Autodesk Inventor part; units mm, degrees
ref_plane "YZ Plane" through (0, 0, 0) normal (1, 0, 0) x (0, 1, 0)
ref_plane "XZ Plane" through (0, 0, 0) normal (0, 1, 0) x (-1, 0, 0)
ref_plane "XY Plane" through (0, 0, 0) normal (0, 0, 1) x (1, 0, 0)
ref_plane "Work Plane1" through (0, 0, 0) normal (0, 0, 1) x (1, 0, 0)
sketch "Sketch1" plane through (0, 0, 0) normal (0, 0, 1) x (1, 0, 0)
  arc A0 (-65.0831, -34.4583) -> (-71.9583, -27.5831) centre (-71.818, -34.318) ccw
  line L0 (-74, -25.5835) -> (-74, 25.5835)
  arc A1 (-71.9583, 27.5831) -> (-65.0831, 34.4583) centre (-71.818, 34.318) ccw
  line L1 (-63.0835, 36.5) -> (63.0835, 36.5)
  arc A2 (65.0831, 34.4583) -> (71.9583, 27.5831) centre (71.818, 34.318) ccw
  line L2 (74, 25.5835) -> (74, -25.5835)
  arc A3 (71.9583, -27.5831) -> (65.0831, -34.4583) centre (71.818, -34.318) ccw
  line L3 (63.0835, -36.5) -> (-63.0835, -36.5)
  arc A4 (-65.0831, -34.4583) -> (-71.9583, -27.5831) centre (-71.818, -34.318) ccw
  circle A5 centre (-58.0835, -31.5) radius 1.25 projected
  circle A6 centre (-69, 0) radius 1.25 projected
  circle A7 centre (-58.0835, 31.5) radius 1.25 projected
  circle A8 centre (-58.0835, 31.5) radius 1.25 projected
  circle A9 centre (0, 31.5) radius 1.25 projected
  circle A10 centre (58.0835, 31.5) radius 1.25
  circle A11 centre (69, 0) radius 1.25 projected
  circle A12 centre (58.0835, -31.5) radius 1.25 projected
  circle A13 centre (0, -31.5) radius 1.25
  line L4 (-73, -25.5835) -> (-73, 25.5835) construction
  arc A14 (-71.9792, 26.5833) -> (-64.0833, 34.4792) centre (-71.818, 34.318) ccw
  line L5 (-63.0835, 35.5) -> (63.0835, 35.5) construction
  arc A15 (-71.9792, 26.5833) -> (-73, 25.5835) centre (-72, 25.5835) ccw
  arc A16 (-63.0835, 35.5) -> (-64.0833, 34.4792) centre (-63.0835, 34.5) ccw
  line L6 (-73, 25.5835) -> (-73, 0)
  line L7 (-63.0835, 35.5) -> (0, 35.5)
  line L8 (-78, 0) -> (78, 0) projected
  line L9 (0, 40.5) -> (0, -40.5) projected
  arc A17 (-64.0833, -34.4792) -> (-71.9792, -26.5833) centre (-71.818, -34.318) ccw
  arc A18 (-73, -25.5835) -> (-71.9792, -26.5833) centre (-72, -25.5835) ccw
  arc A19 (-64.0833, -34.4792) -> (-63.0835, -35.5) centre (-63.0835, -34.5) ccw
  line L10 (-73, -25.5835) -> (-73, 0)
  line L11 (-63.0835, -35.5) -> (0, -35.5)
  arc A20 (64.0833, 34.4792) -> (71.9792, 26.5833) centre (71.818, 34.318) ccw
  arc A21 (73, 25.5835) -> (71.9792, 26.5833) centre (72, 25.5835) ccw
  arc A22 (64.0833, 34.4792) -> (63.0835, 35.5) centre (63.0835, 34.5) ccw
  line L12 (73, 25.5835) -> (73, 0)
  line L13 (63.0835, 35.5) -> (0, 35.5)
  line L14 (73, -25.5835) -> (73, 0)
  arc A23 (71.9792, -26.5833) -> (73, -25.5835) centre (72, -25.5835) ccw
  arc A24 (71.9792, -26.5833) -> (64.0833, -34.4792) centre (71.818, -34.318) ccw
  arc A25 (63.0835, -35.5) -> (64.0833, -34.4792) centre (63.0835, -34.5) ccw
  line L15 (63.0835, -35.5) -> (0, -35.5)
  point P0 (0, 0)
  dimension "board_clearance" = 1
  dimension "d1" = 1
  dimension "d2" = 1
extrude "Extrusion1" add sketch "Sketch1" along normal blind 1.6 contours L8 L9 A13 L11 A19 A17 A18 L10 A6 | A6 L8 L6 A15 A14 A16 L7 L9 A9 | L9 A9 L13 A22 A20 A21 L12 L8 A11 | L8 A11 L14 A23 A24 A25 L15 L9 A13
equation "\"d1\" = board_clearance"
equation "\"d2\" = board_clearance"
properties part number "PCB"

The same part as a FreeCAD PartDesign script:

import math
import FreeCAD as App
import Part
import Sketcher

V = App.Vector
Q = App.Units.Quantity

doc = App.newDocument("Part")
body = doc.addObject("PartDesign::Body", "Body")

sketch1 = body.newObject("Sketcher::SketchObject", "Sketch")
sketch1.AttachmentSupport = (doc.getObject("XY_Plane"), [""])
sketch1.MapMode = "FlatFace"
sketch1.addGeometry([
    Part.LineSegment(V(-63.1, -35.5, 0), V(63.1, -35.5, 0)),
    Part.ArcOfCircle(Part.Circle(V(63.1, -34.5, 0), V(0, 0, 1), 1), math.radians(-90), math.radians(1)),
    Part.ArcOfCircle(Part.Circle(V(71.8, -34.3, 0), V(0, 0, 1), 7.7), math.radians(89), math.radians(181)),
    Part.ArcOfCircle(Part.Circle(V(72, -25.6, 0), V(0, 0, 1), 1), math.radians(-91), math.radians(0)),
    Part.LineSegment(V(73, -25.6, 0), V(73, 25.6, 0)),
    Part.ArcOfCircle(Part.Circle(V(72, 25.6, 0), V(0, 0, 1), 1), math.radians(0), math.radians(91)),
    Part.ArcOfCircle(Part.Circle(V(71.8, 34.3, 0), V(0, 0, 1), 7.7), math.radians(179), math.radians(271)),
    Part.ArcOfCircle(Part.Circle(V(63.1, 34.5, 0), V(0, 0, 1), 1), math.radians(-1), math.radians(90)),
    Part.LineSegment(V(63.1, 35.5, 0), V(-63.1, 35.5, 0)),
    Part.ArcOfCircle(Part.Circle(V(-63.1, 34.5, 0), V(0, 0, 1), 1), math.radians(90), math.radians(181)),
    Part.ArcOfCircle(Part.Circle(V(-71.8, 34.3, 0), V(0, 0, 1), 7.7), math.radians(-91), math.radians(1)),
    Part.ArcOfCircle(Part.Circle(V(-72, 25.6, 0), V(0, 0, 1), 1), math.radians(89), math.radians(180)),
    Part.LineSegment(V(-73, 25.6, 0), V(-73, -25.6, 0)),
    Part.ArcOfCircle(Part.Circle(V(-72, -25.6, 0), V(0, 0, 1), 1), math.radians(180), math.radians(271)),
    Part.ArcOfCircle(Part.Circle(V(-71.8, -34.3, 0), V(0, 0, 1), 7.7), math.radians(-1), math.radians(91)),
    Part.ArcOfCircle(Part.Circle(V(-63.1, -34.5, 0), V(0, 0, 1), 1), math.radians(179), math.radians(270)),
    Part.Circle(V(0, -31.5, 0), V(0, 0, 1), 1.2),
    Part.Circle(V(-69, 0, 0), V(0, 0, 1), 1.2),
    Part.Circle(V(-58.1, -31.5, 0), V(0, 0, 1), 1.2),
    Part.Circle(V(-58.1, 31.5, 0), V(0, 0, 1), 1.2),
    Part.Circle(V(0, 31.5, 0), V(0, 0, 1), 1.2),
    Part.Circle(V(69, 0, 0), V(0, 0, 1), 1.2),
    Part.Circle(V(58.1, -31.5, 0), V(0, 0, 1), 1.2),
    Part.Circle(V(58.1, 31.5, 0), V(0, 0, 1), 1.2),
], False)
sketch1.addConstraint([
    Sketcher.Constraint("Tangent", 0, 2, 1, 1),
    Sketcher.Constraint("Tangent", 1, 2, 2, 2),
    Sketcher.Constraint("Tangent", 2, 1, 3, 1),
    Sketcher.Constraint("Tangent", 3, 2, 4, 1),
    Sketcher.Constraint("Tangent", 4, 2, 5, 1),
    Sketcher.Constraint("Tangent", 5, 2, 6, 2),
    Sketcher.Constraint("Tangent", 6, 1, 7, 1),
    Sketcher.Constraint("Tangent", 7, 2, 8, 1),
    Sketcher.Constraint("Tangent", 8, 2, 9, 1),
    Sketcher.Constraint("Tangent", 9, 2, 10, 2),
    Sketcher.Constraint("Tangent", 10, 1, 11, 1),
    Sketcher.Constraint("Tangent", 11, 2, 12, 1),
    Sketcher.Constraint("Tangent", 12, 2, 13, 1),
    Sketcher.Constraint("Tangent", 13, 2, 14, 2),
    Sketcher.Constraint("Tangent", 14, 1, 15, 1),
    Sketcher.Constraint("Tangent", 15, 2, 0, 1),
    Sketcher.Constraint("Horizontal", 0),
    Sketcher.Constraint("Vertical", 4),
    Sketcher.Constraint("Horizontal", 8),
    Sketcher.Constraint("Vertical", 12),
    Sketcher.Constraint("Equal", 1, 3),
    Sketcher.Constraint("Equal", 3, 5),
    Sketcher.Constraint("Equal", 2, 6),
    Sketcher.Constraint("Equal", 5, 7),
    Sketcher.Constraint("Equal", 7, 9),
    Sketcher.Constraint("Equal", 6, 10),
    Sketcher.Constraint("Equal", 9, 11),
    Sketcher.Constraint("Equal", 11, 13),
    Sketcher.Constraint("Equal", 10, 14),
    Sketcher.Constraint("Equal", 13, 15),
    Sketcher.Constraint("Equal", 16, 17),
    Sketcher.Constraint("Equal", 17, 18),
    Sketcher.Constraint("Equal", 18, 19),
    Sketcher.Constraint("Equal", 19, 20),
    Sketcher.Constraint("Equal", 20, 21),
    Sketcher.Constraint("Equal", 21, 22),
    Sketcher.Constraint("Equal", 22, 23),
    Sketcher.Constraint("Symmetric", 1, 3, 9, 3, -1, 1),
    Sketcher.Constraint("Symmetric", 3, 3, 11, 3, -1, 1),
    Sketcher.Constraint("Symmetric", 6, 3, 14, 3, -1, 1),
    Sketcher.Constraint("Symmetric", 16, 3, 20, 3, -1, 1),
    Sketcher.Constraint("Symmetric", 17, 3, 21, 3, -1, 1),
    Sketcher.Constraint("Symmetric", 19, 3, 22, 3, -1, 1),
    Sketcher.Constraint("Symmetric", 18, 3, 23, 3, -1, 1),
    Sketcher.Constraint("Symmetric", 6, 3, 10, 3, -2),
    Sketcher.Constraint("Symmetric", 18, 3, 22, 3, -2),
    Sketcher.Constraint("PointOnObject", 16, 3, -2),
    Sketcher.Constraint("PointOnObject", 17, 3, -1),
    Sketcher.Constraint("Horizontal", 16, 3, 18, 3),
    Sketcher.Constraint("Radius", 1, Q("1 mm")),
    Sketcher.Constraint("Diameter", 16, Q("2.5 mm")),
    Sketcher.Constraint("DistanceX", -1, 1, 3, 3, Q("72 mm")),
    Sketcher.Constraint("DistanceX", 17, 3, -1, 1, Q("69 mm")),
    Sketcher.Constraint("DistanceY", 1, 3, 7, 3, Q("69 mm")),
    Sketcher.Constraint("DistanceY", 1, 3, 16, 3, Q("3 mm")),
    Sketcher.Constraint("DistanceX", 15, 3, 18, 3, Q("5 mm")),
    Sketcher.Constraint("Radius", 2, Q("7.7364 mm")),
    Sketcher.Constraint("DistanceX", 0, 1, 0, 2, Q("126.167 mm")),
    Sketcher.Constraint("DistanceY", 4, 1, 4, 2, Q("51.167 mm")),
])
pad1 = body.newObject("PartDesign::Pad", "Pad")
pad1.Profile = sketch1
pad1.Length = 1.6

doc.recompute()
